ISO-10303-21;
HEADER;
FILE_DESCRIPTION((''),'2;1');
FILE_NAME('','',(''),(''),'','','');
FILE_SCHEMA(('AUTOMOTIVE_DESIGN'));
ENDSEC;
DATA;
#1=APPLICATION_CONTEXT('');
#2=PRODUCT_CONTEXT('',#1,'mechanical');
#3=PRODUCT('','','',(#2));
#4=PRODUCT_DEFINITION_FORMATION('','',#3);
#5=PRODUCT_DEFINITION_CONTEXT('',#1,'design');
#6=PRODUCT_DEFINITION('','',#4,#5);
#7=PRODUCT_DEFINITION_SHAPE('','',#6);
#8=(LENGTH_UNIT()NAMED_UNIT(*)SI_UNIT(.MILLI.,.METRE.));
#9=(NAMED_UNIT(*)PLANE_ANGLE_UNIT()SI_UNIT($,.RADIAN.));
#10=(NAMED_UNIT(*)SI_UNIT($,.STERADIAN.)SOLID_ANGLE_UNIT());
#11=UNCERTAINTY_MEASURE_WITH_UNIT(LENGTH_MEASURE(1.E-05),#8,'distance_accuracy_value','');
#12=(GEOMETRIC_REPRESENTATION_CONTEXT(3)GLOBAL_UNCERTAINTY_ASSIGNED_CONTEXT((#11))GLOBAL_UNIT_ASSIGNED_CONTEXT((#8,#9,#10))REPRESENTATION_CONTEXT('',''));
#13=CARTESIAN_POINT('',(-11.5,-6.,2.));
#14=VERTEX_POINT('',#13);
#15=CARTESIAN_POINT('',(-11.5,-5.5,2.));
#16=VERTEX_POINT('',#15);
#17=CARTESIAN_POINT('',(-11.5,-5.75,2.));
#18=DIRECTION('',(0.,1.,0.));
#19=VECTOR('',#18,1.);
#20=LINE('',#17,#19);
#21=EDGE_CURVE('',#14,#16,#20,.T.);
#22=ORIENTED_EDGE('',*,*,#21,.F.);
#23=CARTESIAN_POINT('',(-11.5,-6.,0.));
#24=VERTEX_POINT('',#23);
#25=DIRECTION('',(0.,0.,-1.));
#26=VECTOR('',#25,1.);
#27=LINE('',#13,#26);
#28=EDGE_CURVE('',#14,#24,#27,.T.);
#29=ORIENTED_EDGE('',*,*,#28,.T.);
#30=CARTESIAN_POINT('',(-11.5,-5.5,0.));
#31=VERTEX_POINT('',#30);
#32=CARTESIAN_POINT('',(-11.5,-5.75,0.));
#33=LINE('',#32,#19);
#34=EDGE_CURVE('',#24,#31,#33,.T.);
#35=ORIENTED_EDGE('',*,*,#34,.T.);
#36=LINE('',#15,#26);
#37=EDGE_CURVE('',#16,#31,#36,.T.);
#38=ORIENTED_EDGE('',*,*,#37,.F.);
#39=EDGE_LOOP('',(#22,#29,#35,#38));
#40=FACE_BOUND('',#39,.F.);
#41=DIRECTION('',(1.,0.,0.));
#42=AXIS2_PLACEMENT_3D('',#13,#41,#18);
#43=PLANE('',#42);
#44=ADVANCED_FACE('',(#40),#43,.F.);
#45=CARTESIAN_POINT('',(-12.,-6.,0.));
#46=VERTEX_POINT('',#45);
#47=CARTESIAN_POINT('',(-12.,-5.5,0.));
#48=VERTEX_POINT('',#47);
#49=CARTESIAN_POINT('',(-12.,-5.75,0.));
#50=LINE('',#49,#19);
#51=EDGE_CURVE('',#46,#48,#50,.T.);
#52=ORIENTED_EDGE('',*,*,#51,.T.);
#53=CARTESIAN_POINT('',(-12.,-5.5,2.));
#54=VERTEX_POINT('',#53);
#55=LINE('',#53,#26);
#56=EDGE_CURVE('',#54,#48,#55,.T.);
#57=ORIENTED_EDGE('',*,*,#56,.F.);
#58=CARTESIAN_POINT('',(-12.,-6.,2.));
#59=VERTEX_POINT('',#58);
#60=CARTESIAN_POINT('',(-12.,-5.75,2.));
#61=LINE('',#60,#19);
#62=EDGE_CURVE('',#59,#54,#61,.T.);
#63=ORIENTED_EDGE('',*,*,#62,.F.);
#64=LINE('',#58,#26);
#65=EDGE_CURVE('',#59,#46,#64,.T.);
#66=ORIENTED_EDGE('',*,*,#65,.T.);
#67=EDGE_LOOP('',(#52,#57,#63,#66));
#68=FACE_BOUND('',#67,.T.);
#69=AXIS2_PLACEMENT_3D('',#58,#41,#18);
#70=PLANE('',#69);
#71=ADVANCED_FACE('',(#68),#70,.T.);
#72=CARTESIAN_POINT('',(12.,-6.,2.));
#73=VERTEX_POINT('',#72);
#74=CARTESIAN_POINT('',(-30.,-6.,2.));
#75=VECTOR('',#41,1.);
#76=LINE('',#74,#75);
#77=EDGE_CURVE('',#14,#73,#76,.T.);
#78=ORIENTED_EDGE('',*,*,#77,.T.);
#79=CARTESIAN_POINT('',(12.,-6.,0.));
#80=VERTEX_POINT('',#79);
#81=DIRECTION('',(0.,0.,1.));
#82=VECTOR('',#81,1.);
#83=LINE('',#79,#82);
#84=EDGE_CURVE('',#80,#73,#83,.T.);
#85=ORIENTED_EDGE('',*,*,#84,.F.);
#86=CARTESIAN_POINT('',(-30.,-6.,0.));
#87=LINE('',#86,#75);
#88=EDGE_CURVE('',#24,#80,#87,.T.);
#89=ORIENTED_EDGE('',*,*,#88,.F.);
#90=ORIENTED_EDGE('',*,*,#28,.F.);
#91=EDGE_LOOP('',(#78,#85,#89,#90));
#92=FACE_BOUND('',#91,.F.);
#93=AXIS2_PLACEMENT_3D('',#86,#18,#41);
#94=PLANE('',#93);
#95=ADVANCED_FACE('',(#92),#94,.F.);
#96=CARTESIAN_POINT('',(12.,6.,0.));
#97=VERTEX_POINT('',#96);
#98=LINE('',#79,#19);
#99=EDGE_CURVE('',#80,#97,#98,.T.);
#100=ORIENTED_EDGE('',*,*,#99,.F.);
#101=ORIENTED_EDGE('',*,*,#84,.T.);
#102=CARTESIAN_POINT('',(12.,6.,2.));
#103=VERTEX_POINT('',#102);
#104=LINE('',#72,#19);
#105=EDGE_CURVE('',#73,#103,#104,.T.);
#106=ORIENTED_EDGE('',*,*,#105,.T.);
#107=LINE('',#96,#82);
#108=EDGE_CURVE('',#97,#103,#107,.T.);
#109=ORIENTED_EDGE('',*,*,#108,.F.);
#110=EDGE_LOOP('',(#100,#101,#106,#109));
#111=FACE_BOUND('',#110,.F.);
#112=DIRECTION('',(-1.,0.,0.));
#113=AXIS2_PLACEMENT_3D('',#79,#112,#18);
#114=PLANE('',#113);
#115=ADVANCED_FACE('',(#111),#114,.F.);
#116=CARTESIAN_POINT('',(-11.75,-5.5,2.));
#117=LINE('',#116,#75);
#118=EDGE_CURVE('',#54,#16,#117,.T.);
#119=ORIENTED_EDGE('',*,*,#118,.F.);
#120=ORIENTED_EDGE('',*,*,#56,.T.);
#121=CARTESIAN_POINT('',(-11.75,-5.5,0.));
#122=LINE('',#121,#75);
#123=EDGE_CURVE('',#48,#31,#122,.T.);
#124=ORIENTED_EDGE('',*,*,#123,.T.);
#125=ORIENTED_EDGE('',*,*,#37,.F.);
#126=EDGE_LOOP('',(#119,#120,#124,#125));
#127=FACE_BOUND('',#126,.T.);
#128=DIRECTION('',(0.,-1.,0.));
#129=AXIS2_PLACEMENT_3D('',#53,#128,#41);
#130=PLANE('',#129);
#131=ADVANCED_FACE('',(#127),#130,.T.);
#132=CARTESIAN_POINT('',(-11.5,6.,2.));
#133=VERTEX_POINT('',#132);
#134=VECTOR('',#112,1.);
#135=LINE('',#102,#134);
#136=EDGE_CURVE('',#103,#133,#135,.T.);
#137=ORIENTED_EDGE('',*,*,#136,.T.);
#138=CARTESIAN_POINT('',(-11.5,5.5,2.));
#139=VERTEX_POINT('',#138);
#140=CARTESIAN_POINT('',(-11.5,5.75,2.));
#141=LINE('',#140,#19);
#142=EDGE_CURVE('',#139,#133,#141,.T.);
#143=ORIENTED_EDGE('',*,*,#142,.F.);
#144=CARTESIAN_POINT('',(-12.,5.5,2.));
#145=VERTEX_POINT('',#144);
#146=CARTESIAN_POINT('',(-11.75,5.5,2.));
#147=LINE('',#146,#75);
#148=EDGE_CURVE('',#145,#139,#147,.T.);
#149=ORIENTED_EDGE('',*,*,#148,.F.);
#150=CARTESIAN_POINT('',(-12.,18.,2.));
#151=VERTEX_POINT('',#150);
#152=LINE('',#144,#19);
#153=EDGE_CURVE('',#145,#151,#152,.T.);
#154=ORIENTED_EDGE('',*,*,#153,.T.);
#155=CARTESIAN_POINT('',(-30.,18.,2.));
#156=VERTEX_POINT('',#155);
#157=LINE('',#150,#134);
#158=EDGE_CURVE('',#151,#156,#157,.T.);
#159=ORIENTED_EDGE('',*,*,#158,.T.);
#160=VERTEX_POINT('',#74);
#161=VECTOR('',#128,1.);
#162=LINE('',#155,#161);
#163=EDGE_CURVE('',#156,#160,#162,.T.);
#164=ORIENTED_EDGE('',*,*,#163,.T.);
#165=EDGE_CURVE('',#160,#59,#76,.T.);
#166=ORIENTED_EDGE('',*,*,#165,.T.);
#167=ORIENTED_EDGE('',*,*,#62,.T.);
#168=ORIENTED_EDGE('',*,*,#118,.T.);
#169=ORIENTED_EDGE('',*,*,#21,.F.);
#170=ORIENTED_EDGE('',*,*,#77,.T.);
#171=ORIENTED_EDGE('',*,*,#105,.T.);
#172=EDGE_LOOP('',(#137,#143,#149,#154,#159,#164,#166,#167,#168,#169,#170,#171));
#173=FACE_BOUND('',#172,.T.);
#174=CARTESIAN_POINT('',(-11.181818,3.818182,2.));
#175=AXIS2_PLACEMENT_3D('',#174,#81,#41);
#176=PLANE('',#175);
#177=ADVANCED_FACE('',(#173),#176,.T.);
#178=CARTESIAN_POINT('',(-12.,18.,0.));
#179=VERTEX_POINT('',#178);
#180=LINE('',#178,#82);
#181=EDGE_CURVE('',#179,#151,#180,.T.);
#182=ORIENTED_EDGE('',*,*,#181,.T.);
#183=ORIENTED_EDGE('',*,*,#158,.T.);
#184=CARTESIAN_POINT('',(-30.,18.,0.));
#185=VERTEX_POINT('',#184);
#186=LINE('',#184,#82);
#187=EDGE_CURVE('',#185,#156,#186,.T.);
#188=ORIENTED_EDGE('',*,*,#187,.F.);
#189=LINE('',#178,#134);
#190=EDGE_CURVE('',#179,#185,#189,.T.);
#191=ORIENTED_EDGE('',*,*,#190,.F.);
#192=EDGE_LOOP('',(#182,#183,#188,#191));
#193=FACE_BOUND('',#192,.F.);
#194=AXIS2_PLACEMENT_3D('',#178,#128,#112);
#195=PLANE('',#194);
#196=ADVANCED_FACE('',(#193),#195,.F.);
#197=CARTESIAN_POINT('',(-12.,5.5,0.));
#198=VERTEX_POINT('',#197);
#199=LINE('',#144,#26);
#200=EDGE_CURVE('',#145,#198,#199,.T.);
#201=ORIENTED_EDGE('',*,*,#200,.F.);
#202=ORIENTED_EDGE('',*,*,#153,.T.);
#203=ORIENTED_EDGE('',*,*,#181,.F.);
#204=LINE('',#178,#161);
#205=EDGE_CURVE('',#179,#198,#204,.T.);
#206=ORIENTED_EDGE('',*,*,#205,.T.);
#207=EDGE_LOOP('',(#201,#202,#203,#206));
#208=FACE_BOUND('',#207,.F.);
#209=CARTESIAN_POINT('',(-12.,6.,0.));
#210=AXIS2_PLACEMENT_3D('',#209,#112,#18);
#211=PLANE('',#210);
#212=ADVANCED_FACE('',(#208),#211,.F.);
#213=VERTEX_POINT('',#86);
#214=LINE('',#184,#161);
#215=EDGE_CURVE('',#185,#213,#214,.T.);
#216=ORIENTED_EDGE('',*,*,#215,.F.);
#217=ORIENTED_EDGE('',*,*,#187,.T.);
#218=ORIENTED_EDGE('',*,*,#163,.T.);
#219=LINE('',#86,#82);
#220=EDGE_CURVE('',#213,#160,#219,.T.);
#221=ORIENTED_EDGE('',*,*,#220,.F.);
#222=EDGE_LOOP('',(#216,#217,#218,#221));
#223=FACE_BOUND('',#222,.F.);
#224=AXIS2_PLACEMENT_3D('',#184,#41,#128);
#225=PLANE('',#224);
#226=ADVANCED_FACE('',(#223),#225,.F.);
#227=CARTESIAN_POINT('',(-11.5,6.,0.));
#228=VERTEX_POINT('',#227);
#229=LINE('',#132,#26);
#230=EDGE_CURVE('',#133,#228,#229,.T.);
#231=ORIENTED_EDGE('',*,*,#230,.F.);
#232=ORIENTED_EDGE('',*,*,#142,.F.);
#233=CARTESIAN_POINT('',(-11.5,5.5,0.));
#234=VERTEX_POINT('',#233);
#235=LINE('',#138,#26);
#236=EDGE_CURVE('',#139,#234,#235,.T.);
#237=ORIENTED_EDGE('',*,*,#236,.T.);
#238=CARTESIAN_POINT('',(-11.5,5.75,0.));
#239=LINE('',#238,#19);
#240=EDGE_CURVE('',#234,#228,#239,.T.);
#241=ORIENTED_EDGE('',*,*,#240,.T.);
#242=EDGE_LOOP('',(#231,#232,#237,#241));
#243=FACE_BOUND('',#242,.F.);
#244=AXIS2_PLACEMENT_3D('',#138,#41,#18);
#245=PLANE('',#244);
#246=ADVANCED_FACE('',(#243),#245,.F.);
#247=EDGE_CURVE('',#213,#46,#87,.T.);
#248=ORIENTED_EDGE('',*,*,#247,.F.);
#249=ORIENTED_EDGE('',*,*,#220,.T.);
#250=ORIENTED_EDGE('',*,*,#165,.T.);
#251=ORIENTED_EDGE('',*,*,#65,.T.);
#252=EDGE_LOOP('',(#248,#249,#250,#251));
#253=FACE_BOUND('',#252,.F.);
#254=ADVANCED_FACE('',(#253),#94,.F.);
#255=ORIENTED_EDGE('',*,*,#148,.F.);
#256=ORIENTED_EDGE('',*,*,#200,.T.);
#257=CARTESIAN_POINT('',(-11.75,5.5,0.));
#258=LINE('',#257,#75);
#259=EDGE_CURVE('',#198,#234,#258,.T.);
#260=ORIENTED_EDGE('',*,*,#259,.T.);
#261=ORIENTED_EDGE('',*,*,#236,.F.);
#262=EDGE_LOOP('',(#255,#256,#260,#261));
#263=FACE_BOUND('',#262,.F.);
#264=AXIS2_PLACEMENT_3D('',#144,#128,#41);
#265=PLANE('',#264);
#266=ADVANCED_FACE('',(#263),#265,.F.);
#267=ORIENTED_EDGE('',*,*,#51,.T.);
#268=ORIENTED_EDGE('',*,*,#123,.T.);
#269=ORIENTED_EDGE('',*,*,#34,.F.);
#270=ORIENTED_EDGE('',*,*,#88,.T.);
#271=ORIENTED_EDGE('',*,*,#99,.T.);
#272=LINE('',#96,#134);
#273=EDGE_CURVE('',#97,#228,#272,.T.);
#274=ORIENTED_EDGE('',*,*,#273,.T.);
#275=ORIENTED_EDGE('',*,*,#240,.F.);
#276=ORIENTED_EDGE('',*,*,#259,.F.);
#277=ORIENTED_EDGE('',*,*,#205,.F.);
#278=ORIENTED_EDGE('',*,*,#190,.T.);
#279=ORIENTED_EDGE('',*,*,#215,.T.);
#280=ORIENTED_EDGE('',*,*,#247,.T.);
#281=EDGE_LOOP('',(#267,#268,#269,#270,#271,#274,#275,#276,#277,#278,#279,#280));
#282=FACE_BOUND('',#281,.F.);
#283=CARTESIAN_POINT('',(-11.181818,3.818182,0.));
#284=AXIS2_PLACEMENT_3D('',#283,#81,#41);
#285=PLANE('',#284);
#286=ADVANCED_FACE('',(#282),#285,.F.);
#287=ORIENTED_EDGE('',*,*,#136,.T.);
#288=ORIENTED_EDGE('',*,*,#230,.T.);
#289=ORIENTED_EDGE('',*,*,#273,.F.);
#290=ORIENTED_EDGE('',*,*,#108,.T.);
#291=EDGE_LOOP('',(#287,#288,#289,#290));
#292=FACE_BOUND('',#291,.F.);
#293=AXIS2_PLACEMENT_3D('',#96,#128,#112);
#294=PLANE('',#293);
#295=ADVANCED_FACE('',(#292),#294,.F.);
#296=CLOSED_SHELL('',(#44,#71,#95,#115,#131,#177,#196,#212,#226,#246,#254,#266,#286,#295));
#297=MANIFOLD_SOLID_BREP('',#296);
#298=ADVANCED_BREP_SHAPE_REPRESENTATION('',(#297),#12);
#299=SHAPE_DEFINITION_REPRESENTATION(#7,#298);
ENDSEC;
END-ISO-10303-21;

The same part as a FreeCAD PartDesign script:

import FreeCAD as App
import Part
import Sketcher

V = App.Vector


def add_polygon(sketch, points):
    """Adds a closed chain of lines whose ends are joined by coincident constraints."""
    first, n = sketch.GeometryCount, len(points)
    for a, b in zip(points, points[1:] + points[:1]):
        sketch.addGeometry(Part.LineSegment(App.Vector(*a, 0), App.Vector(*b, 0)), False)
    for i in range(n):
        sketch.addConstraint(Sketcher.Constraint("Coincident", first + i, 2, first + (i + 1) % n, 1))

doc = App.newDocument("Part")
body = doc.addObject("PartDesign::Body", "Body")

# Sketch on XY plane
sketch1 = doc.addObject("Sketcher::SketchObject", "Sketch")
body.addObject(sketch1)
sketch1.AttachmentSupport = (doc.XY_Plane, [""])
sketch1.MapMode = "FlatFace"
add_polygon(sketch1, [(12, -6), (12, 6), (-12, 6), (-12, 18), (-30, 18), (-30, -6)])  # lines 0-5
sketch1.addConstraint([
    Sketcher.Constraint("Vertical", 0),
    Sketcher.Constraint("Horizontal", 1),
    Sketcher.Constraint("Vertical", 2),
    Sketcher.Constraint("Horizontal", 3),
    Sketcher.Constraint("Vertical", 4),
    Sketcher.Constraint("Horizontal", 5),
    Sketcher.Constraint("Symmetric", 1, 2, 5, 2, -1, 1),
    Sketcher.Constraint("Equal", 0, 2),
    Sketcher.Constraint("Equal", 1, 4),
    Sketcher.Constraint("DistanceX", 1, 2, 1, 1, 24.0),
    Sketcher.Constraint("DistanceX", 3, 2, 3, 1, 18.0),
])
pad1 = doc.addObject("PartDesign::Pad", "Pad")
body.addObject(pad1)
pad1.Profile = sketch1
pad1.Length = 2

# Sketch on XY plane
sketch2 = doc.addObject("Sketcher::SketchObject", "Sketch001")
body.addObject(sketch2)
sketch2.AttachmentSupport = (doc.XY_Plane, [""])
sketch2.MapMode = "FlatFace"
sketch2.AttachmentOffset = App.Placement(V(0, 0, 2), App.Rotation())
add_polygon(sketch2, [(-12, -5.5), (-12, -6), (-11.5, -6), (-11.5, -5.5)])  # lines 0-3
add_polygon(sketch2, [(-12, 6), (-12, 5.5), (-11.5, 5.5), (-11.5, 6)])  # lines 4-7
sketch2.addConstraint([
    Sketcher.Constraint("Vertical", 0),
    Sketcher.Constraint("Horizontal", 1),
    Sketcher.Constraint("Vertical", 2),
    Sketcher.Constraint("Horizontal", 3),
    Sketcher.Constraint("Vertical", 4),
    Sketcher.Constraint("Horizontal", 5),
    Sketcher.Constraint("Vertical", 6),
    Sketcher.Constraint("Horizontal", 7),
    Sketcher.Constraint("Symmetric", 3, 2, 4, 2, -1),
    Sketcher.Constraint("Symmetric", 1, 2, 6, 2, -1),
    Sketcher.Constraint("Equal", 7, 0),
    Sketcher.Constraint("DistanceX", 1, 1, 1, 2, 0.5),
    Sketcher.Constraint("DistanceX", 0, 2, -1, 1, 12.0),
    Sketcher.Constraint("DistanceY", 0, 2, -1, 1, 6.0),
])
pocket1 = doc.addObject("PartDesign::Pocket", "Pocket")
body.addObject(pocket1)
pocket1.Profile = sketch2
pocket1.Type = "ThroughAll"

doc.recompute()
